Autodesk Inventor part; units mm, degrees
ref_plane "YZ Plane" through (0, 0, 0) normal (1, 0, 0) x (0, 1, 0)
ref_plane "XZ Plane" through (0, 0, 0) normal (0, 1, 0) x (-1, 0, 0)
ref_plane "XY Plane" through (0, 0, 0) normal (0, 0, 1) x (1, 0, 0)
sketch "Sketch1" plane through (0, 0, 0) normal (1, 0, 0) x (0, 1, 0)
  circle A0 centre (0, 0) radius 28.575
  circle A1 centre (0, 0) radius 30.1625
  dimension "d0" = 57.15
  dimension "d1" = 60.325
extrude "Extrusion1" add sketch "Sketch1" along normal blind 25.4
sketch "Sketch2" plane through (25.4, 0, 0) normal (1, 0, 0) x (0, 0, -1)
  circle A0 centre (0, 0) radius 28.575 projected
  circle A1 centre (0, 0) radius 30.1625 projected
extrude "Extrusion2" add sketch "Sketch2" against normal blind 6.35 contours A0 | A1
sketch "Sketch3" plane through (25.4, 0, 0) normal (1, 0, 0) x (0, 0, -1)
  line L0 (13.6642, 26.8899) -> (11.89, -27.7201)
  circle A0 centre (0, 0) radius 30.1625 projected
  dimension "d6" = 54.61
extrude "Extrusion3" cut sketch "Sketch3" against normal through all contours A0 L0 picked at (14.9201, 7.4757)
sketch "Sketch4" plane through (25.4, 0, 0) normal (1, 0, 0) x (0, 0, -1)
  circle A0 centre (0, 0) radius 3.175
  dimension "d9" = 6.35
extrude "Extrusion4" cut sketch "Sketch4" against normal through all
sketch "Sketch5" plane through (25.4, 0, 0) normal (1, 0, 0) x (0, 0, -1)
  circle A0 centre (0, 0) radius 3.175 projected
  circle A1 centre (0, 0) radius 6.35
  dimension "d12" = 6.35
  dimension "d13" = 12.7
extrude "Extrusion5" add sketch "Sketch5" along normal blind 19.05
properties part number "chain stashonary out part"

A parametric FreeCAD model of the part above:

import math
import FreeCAD as App
import Part
import Sketcher

V = App.Vector
Q = App.Units.Quantity

doc = App.newDocument("Part")
body = doc.addObject("PartDesign::Body", "Body")

sketch1 = body.newObject("Sketcher::SketchObject", "Sketch")
sketch1.AttachmentSupport = (doc.getObject("YZ_Plane"), [""])
sketch1.MapMode = "FlatFace"
sketch1.addGeometry([
    Part.Circle(V(0, 0, 0), V(0, 0, 1), 30),
    Part.Circle(V(0, 0, 0), V(0, 0, 1), 29),
], False)
sketch1.addConstraint([
    Sketcher.Constraint("Coincident", 0, 3, -1, 1),
    Sketcher.Constraint("Coincident", 1, 3, -1, 1),
    Sketcher.Constraint("Diameter", 1, Q("2.25 in")),
    Sketcher.Constraint("Diameter", 0, Q("2.375 in")),
])
pad1 = body.newObject("PartDesign::Pad", "Pad")
pad1.Profile = sketch1
pad1.Length = Q("1 in")

sketch2 = body.newObject("Sketcher::SketchObject", "Sketch001")
sketch2.AttachmentSupport = (doc.getObject("YZ_Plane"), [""])
sketch2.MapMode = "FlatFace"
sketch2.AttachmentOffset = App.Placement(V(0, 0, 1 * 25.4), App.Rotation())
sketch2.addGeometry(Part.Circle(V(0, 0, 0), V(0, 0, 1), 30), False)
sketch2.addConstraint([
    Sketcher.Constraint("Coincident", 0, 3, -1, 1),
    Sketcher.Constraint("Diameter", 0, Q("2.375 in")),
])
pad2 = body.newObject("PartDesign::Pad", "Pad001")
pad2.Profile = sketch2
pad2.Length = Q("0.25 in")
pad2.Reversed = True

sketch3 = body.newObject("Sketcher::SketchObject", "Sketch002")
sketch3.AttachmentSupport = (doc.getObject("YZ_Plane"), [""])
sketch3.MapMode = "FlatFace"
sketch3.AttachmentOffset = App.Placement(V(0, 0, 1 * 25.4), App.Rotation())
sketch3.addGeometry([
    Part.ArcOfCircle(Part.Circle(V(0, 0, 0), V(0, 0, 1), 30), math.radians(-157), math.radians(-27)),
    Part.LineSegment(V(-28, -12, 0), V(27, -14, 0)),
], False)
sketch3.addConstraint([
    Sketcher.Constraint("Coincident", 0, 1, 1, 1),
    Sketcher.Constraint("Coincident", 1, 2, 0, 2),
    Sketcher.Constraint("Coincident", 0, 3, -1, 1),
    Sketcher.Constraint("DistanceX", 0, 1, 1, 2, Q("2.15 in")),
    Sketcher.Constraint("Radius", 0, Q("1.1875 in")),
    Sketcher.Constraint("Angle", 1, Q("-1.8608 deg")),
])
pocket1 = body.newObject("PartDesign::Pocket", "Pocket")
pocket1.Profile = sketch3
pocket1.Type = "ThroughAll"

sketch4 = body.newObject("Sketcher::SketchObject", "Sketch003")
sketch4.AttachmentSupport = (doc.getObject("YZ_Plane"), [""])
sketch4.MapMode = "FlatFace"
sketch4.AttachmentOffset = App.Placement(V(0, 0, 1 * 25.4), App.Rotation())
sketch4.addGeometry(Part.Circle(V(0, 0, 0), V(0, 0, 1), 3.2), False)
sketch4.addConstraint([
    Sketcher.Constraint("Coincident", 0, 3, -1, 1),
    Sketcher.Constraint("Diameter", 0, Q("0.25 in")),
])
pocket2 = body.newObject("PartDesign::Pocket", "Pocket001")
pocket2.Profile = sketch4
pocket2.Type = "ThroughAll"

sketch5 = body.newObject("Sketcher::SketchObject", "Sketch004")
sketch5.AttachmentSupport = (doc.getObject("YZ_Plane"), [""])
sketch5.MapMode = "FlatFace"
sketch5.AttachmentOffset = App.Placement(V(0, 0, 1 * 25.4), App.Rotation())
sketch5.addGeometry([
    Part.Circle(V(0, 0, 0), V(0, 0, 1), 6.3),
    Part.Circle(V(0, 0, 0), V(0, 0, 1), 3.2),
], False)
sketch5.addConstraint([
    Sketcher.Constraint("Coincident", 0, 3, -1, 1),
    Sketcher.Constraint("Coincident", 1, 3, -1, 1),
    Sketcher.Constraint("Diameter", 0, Q("0.5 in")),
    Sketcher.Constraint("Diameter", 1, Q("0.25 in")),
])
pad3 = body.newObject("PartDesign::Pad", "Pad002")
pad3.Profile = sketch5
pad3.Length = Q("0.75 in")

doc.recompute()
